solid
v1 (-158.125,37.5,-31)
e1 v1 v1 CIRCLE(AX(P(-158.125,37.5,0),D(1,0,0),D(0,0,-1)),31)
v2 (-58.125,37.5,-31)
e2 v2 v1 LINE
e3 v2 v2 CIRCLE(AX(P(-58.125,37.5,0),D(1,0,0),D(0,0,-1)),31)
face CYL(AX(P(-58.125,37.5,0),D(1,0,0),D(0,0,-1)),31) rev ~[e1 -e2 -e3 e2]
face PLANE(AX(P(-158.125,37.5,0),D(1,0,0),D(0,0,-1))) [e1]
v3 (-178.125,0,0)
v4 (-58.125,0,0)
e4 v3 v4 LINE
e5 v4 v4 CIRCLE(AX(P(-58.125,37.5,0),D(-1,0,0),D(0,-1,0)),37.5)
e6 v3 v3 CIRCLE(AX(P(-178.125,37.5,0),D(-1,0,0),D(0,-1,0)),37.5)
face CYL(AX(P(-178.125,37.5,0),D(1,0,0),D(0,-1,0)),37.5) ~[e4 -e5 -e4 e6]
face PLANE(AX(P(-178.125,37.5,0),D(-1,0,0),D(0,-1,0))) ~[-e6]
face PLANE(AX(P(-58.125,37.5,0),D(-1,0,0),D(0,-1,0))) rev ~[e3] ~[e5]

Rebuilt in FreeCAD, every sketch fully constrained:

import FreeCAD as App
import Part
import Sketcher
from FreeCAD import Vector
Q = App.Units.Quantity


def add_polygon(sketch, points):
    """Adds a closed chain of lines whose ends are joined by coincident constraints."""
    first, n = sketch.GeometryCount, len(points)
    for a, b in zip(points, points[1:] + points[:1]):
        sketch.addGeometry(Part.LineSegment(App.Vector(*a, 0), App.Vector(*b, 0)), False)
    for i in range(n):
        sketch.addConstraint(Sketcher.Constraint("Coincident", first + i, 2, first + (i + 1) % n, 1))

doc = App.newDocument("Part")
body = doc.addObject("PartDesign::Body", "Body")

# Sketch on XY plane
sketch1 = body.newObject("Sketcher::SketchObject", "Sketch")
sketch1.AttachmentSupport = (doc.getObject("XY_Plane"), [""])
sketch1.MapMode = "FlatFace"
add_polygon(sketch1, [(-178.125, 37.5), (-178.125, 0), (-58.125, 0), (-58.125, 37.5)])  # lines 0-3
sketch1.addGeometry(Part.LineSegment(Vector(-58.125, 37.5, 0), Vector(-178.125, 37.5, 0)), True)  # axis
sketch1.addConstraint([
    Sketcher.Constraint("Vertical", 0),
    Sketcher.Constraint("Horizontal", 1),
    Sketcher.Constraint("Vertical", 2),
    Sketcher.Constraint("Horizontal", 3),
    Sketcher.Constraint("Horizontal", 4),
    Sketcher.Constraint("Coincident", 4, 1, 2, 2),
    Sketcher.Constraint("PointOnObject", 0, 2, -1),
    Sketcher.Constraint("Vertical", 0, 2, 4, 2),
    Sketcher.Constraint("DistanceX", 1, 1, 1, 2, Q("120 mm")),
    Sketcher.Constraint("DistanceY", 0, 2, 0, 1, Q("37.5 mm")),
    Sketcher.Constraint("DistanceX", 1, 2, -1, 1, Q("58.125 mm")),
])
revolution = body.newObject("PartDesign::Revolution", "Revolution")
revolution.Profile = sketch1
revolution.ReferenceAxis = (sketch1, ["Axis0"])
revolution.Angle = 360

# Sketch on YZ plane
sketch2 = body.newObject("Sketcher::SketchObject", "Sketch001")
sketch2.AttachmentSupport = (doc.getObject("YZ_Plane"), [""])
sketch2.MapMode = "FlatFace"
sketch2.AttachmentOffset = App.Placement(Vector(0, 0, -58.125), App.Rotation())
sketch2.addGeometry(Part.Circle(Vector(37.5, 0, 0), Vector(0, 0, 1), 31), False)
sketch2.addConstraint([
    Sketcher.Constraint("PointOnObject", 0, 3, -1),
    Sketcher.Constraint("Diameter", 0, Q("62 mm")),
    Sketcher.Constraint("DistanceX", -1, 1, 0, 3, Q("37.5 mm")),
])
pocket1 = body.newObject("PartDesign::Pocket", "Pocket")
pocket1.Profile = sketch2
pocket1.Length = 100

doc.recompute()
